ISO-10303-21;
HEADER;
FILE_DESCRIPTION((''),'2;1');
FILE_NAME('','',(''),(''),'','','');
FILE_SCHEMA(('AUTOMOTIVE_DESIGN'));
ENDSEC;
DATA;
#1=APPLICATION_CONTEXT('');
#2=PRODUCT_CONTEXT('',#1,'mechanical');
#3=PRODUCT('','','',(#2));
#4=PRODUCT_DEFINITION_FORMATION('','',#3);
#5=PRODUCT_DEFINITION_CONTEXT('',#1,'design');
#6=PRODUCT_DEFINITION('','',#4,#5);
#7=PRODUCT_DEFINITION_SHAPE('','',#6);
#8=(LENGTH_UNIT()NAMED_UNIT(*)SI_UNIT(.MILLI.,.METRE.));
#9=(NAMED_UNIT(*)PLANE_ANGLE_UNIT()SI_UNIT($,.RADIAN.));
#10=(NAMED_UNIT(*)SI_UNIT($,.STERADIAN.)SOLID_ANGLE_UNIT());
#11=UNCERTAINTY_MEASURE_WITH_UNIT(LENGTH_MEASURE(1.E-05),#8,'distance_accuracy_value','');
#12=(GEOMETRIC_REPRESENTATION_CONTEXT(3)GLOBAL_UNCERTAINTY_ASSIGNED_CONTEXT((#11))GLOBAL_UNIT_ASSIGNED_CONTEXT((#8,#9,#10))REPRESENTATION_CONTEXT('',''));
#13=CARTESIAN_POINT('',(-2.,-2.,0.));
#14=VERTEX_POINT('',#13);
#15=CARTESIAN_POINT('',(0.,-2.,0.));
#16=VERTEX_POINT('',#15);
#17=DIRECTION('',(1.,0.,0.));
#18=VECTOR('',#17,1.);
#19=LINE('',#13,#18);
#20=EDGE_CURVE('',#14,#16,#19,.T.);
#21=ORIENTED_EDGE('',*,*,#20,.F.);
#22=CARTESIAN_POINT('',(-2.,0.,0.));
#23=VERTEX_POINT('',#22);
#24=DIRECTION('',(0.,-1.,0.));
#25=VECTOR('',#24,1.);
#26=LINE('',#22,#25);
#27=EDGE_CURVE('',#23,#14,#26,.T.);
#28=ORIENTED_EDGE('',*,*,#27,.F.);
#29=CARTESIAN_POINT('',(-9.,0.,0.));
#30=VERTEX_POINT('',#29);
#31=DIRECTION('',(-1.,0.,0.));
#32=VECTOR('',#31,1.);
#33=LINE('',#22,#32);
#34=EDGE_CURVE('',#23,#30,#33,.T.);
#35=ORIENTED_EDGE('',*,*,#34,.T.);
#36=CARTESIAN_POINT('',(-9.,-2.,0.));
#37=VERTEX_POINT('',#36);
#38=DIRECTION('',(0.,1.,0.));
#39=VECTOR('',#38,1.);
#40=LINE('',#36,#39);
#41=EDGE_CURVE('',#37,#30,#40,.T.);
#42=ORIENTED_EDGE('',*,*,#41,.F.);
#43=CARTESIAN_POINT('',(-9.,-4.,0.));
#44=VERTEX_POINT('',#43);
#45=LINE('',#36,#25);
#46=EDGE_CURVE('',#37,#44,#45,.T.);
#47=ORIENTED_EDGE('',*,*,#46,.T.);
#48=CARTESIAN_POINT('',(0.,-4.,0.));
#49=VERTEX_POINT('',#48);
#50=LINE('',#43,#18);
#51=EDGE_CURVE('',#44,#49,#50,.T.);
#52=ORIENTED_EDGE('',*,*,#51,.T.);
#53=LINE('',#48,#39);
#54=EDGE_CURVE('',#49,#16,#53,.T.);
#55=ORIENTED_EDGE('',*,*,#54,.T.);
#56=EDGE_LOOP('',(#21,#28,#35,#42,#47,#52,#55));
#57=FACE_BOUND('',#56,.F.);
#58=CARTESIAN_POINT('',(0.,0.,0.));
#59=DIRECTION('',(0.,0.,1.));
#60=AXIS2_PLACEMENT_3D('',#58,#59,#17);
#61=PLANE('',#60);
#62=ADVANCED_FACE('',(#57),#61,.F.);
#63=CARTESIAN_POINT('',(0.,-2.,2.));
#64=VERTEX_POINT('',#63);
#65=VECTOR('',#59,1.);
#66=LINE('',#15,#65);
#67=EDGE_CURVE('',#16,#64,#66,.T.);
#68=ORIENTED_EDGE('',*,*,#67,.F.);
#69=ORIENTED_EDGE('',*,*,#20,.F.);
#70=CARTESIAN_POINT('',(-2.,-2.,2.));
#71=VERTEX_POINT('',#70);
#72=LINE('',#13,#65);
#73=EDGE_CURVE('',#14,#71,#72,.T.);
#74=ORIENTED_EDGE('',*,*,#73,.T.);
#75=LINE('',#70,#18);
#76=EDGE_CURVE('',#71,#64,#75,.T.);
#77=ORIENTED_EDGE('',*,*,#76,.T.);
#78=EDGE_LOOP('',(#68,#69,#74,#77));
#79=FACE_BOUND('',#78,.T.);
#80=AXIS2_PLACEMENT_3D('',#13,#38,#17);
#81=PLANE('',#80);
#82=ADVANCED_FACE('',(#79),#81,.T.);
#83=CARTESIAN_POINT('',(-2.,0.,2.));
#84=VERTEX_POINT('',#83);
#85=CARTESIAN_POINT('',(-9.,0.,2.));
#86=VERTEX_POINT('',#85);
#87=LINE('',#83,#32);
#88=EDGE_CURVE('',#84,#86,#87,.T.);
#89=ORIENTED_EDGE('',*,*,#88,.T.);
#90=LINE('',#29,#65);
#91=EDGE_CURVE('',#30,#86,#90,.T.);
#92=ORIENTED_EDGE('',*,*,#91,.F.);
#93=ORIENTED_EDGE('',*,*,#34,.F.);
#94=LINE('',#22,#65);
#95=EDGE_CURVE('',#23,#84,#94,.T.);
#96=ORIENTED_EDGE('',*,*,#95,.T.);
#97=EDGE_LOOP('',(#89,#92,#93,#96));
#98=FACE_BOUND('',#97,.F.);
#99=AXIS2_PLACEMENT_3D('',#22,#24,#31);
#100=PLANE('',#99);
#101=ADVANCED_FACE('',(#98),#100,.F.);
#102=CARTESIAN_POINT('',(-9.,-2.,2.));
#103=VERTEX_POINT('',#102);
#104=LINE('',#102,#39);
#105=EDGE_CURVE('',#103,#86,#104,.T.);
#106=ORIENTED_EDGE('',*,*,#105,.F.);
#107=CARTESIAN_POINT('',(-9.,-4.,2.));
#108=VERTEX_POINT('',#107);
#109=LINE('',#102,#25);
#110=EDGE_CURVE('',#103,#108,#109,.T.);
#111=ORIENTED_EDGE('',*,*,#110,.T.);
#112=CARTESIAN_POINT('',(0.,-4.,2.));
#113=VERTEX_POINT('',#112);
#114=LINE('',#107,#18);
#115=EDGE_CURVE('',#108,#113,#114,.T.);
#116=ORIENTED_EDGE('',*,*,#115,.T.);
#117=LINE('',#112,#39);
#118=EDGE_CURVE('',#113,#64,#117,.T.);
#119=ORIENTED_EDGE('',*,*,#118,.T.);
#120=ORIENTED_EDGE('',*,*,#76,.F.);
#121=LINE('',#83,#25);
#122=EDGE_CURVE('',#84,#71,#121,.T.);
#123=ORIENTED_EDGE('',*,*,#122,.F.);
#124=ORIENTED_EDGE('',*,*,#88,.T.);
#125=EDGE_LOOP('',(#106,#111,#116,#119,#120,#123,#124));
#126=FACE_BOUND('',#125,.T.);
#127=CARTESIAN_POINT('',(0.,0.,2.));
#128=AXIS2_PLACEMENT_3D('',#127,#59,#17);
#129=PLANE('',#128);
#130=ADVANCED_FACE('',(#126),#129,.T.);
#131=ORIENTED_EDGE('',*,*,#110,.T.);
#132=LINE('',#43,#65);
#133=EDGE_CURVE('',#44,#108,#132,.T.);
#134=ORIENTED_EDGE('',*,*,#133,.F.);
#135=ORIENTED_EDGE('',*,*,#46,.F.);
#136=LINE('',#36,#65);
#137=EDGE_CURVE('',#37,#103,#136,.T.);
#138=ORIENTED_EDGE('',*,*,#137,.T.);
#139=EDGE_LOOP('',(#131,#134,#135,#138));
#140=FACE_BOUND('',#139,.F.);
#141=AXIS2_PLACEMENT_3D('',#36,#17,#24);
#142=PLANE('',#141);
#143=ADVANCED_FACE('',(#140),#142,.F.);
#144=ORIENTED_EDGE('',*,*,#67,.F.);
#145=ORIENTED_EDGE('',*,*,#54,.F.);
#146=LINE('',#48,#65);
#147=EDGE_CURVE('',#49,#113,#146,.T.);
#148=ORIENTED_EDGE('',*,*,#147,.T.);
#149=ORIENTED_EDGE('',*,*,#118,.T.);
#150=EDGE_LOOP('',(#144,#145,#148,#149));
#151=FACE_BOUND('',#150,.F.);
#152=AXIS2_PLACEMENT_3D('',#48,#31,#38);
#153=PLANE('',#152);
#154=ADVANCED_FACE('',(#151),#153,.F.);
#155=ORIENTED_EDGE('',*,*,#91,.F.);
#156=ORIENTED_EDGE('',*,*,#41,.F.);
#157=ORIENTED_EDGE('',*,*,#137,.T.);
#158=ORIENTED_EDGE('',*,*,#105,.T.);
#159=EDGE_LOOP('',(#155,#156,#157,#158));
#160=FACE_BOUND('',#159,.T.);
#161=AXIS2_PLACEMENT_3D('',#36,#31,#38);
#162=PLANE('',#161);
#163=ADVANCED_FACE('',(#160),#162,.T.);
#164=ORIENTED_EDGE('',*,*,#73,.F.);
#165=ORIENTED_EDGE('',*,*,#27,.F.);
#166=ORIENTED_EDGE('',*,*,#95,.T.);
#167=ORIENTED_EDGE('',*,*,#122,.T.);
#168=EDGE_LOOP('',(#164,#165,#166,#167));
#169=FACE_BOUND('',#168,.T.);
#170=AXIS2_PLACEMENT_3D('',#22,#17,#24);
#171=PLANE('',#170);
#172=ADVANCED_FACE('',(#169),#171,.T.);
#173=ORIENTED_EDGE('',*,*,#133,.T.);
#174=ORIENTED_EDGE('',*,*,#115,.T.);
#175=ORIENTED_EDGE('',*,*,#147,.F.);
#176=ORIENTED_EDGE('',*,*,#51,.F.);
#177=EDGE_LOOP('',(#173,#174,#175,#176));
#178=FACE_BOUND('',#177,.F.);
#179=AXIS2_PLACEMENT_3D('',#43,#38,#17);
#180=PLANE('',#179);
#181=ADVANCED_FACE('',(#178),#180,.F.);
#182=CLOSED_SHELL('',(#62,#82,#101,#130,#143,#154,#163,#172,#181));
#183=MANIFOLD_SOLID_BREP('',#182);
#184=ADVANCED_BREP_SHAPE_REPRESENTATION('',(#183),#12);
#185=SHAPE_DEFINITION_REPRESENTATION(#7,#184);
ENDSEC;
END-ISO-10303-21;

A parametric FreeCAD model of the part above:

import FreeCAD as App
import Part
import Sketcher

V = App.Vector

doc = App.newDocument("Part")
body = doc.addObject("PartDesign::Body", "Body")

# Sketch on XY plane
sketch1 = body.newObject("Sketcher::SketchObject", "Sketch")
sketch1.AttachmentSupport = (doc.getObject("XY_Plane"), [""])
sketch1.MapMode = "FlatFace"
sketch1.addGeometry([
    Part.LineSegment(V(-9, -4, 0), V(0, -4, 0)),  # 0
    Part.LineSegment(V(0, -4, 0), V(0, -2, 0)),  # 1
    Part.LineSegment(V(0, -2, 0), V(-2, -2, 0)),  # 2
    Part.LineSegment(V(-2, -2, 0), V(-2, 0, 0)),  # 3
    Part.LineSegment(V(-2, 0, 0), V(-9, 0, 0)),  # 4
    Part.LineSegment(V(-9, 0, 0), V(-9, -4, 0)),  # 5
], False)
sketch1.addConstraint([
    Sketcher.Constraint("Coincident", 0, 2, 1, 1),
    Sketcher.Constraint("Coincident", 1, 2, 2, 1),
    Sketcher.Constraint("Coincident", 2, 2, 3, 1),
    Sketcher.Constraint("Coincident", 3, 2, 4, 1),
    Sketcher.Constraint("Coincident", 4, 2, 5, 1),
    Sketcher.Constraint("Coincident", 5, 2, 0, 1),
    Sketcher.Constraint("Horizontal", 0),
    Sketcher.Constraint("Vertical", 1),
    Sketcher.Constraint("Horizontal", 2),
    Sketcher.Constraint("Vertical", 3),
    Sketcher.Constraint("Horizontal", 4),
    Sketcher.Constraint("Vertical", 5),
    Sketcher.Constraint("PointOnObject", 0, 2, -2),
    Sketcher.Constraint("PointOnObject", 3, 2, -1),
    Sketcher.Constraint("Equal", 2, 1),
    Sketcher.Constraint("Equal", 1, 3),
    Sketcher.Constraint("DistanceX", 2, 2, 2, 1, 2.0),
    Sketcher.Constraint("DistanceX", 0, 1, 0, 2, 9.0),
])
pad1 = body.newObject("PartDesign::Pad", "Pad")
pad1.Profile = sketch1
pad1.Length = 2

doc.recompute()
